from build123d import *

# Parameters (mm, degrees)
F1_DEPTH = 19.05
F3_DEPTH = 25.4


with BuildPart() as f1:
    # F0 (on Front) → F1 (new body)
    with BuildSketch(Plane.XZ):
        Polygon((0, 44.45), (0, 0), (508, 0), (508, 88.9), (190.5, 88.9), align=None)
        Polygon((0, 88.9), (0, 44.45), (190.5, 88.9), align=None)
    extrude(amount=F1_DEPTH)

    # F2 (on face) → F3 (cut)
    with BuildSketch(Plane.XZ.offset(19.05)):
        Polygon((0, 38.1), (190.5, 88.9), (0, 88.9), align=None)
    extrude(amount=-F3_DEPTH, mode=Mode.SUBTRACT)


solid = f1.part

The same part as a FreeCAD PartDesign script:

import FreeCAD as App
import Part
import Sketcher

V = App.Vector
Q = App.Units.Quantity


def add_polygon(sketch, points):
    """Adds a closed chain of lines whose ends are joined by coincident constraints."""
    first, n = sketch.GeometryCount, len(points)
    for a, b in zip(points, points[1:] + points[:1]):
        sketch.addGeometry(Part.LineSegment(App.Vector(*a, 0), App.Vector(*b, 0)), False)
    for i in range(n):
        sketch.addConstraint(Sketcher.Constraint("Coincident", first + i, 2, first + (i + 1) % n, 1))

doc = App.newDocument("Part")
body = doc.addObject("PartDesign::Body", "Body")

# Sketch on XZ plane
sketch1 = body.newObject("Sketcher::SketchObject", "Sketch")
sketch1.AttachmentSupport = (doc.getObject("XZ_Plane"), [""])
sketch1.MapMode = "FlatFace"
add_polygon(sketch1, [(0, 0), (508, 0), (508, 89), (0, 89)])  # lines 0-3
sketch1.addConstraint(Sketcher.Constraint("Horizontal", 0))
sketch1.addConstraint(Sketcher.Constraint("Vertical", 1))
sketch1.addConstraint(Sketcher.Constraint("Horizontal", 2))
sketch1.addConstraint(Sketcher.Constraint("Vertical", 3))
sketch1.addConstraint(Sketcher.Constraint("Coincident", 3, 2, -1, 1))
sketch1.addConstraint(Sketcher.Constraint("DistanceX", 0, 1, 0, 2, Q("20 in")))
sketch1.addConstraint(Sketcher.Constraint("DistanceY", 1, 1, 1, 2, Q("3.5 in")))
pad1 = body.newObject("PartDesign::Pad", "Pad")
pad1.Profile = sketch1
pad1.Length = Q("0.75 in")

# Sketch on XZ plane
sketch2 = body.newObject("Sketcher::SketchObject", "Sketch001")
sketch2.AttachmentSupport = (doc.getObject("XZ_Plane"), [""])
sketch2.MapMode = "FlatFace"
sketch2.AttachmentOffset = App.Placement(V(0, 0, 0.75 * 25.4), App.Rotation())
add_polygon(sketch2, [(0, 38), (190, 89), (0, 89)])  # lines 0-2
sketch2.addConstraint(Sketcher.Constraint("Horizontal", 1))
sketch2.addConstraint(Sketcher.Constraint("Vertical", 2))
sketch2.addConstraint(Sketcher.Constraint("PointOnObject", 1, 2, -2))
sketch2.addConstraint(Sketcher.Constraint("DistanceY", 2, 2, 2, 1, Q("2 in")))
sketch2.addConstraint(Sketcher.Constraint("DistanceX", 1, 2, 1, 1, Q("7.5 in")))
sketch2.addConstraint(Sketcher.Constraint("DistanceY", -1, 1, 0, 2, Q("3.5 in")))
pocket1 = body.newObject("PartDesign::Pocket", "Pocket")
pocket1.Profile = sketch2
pocket1.Length = Q("1 in")

doc.recompute()
